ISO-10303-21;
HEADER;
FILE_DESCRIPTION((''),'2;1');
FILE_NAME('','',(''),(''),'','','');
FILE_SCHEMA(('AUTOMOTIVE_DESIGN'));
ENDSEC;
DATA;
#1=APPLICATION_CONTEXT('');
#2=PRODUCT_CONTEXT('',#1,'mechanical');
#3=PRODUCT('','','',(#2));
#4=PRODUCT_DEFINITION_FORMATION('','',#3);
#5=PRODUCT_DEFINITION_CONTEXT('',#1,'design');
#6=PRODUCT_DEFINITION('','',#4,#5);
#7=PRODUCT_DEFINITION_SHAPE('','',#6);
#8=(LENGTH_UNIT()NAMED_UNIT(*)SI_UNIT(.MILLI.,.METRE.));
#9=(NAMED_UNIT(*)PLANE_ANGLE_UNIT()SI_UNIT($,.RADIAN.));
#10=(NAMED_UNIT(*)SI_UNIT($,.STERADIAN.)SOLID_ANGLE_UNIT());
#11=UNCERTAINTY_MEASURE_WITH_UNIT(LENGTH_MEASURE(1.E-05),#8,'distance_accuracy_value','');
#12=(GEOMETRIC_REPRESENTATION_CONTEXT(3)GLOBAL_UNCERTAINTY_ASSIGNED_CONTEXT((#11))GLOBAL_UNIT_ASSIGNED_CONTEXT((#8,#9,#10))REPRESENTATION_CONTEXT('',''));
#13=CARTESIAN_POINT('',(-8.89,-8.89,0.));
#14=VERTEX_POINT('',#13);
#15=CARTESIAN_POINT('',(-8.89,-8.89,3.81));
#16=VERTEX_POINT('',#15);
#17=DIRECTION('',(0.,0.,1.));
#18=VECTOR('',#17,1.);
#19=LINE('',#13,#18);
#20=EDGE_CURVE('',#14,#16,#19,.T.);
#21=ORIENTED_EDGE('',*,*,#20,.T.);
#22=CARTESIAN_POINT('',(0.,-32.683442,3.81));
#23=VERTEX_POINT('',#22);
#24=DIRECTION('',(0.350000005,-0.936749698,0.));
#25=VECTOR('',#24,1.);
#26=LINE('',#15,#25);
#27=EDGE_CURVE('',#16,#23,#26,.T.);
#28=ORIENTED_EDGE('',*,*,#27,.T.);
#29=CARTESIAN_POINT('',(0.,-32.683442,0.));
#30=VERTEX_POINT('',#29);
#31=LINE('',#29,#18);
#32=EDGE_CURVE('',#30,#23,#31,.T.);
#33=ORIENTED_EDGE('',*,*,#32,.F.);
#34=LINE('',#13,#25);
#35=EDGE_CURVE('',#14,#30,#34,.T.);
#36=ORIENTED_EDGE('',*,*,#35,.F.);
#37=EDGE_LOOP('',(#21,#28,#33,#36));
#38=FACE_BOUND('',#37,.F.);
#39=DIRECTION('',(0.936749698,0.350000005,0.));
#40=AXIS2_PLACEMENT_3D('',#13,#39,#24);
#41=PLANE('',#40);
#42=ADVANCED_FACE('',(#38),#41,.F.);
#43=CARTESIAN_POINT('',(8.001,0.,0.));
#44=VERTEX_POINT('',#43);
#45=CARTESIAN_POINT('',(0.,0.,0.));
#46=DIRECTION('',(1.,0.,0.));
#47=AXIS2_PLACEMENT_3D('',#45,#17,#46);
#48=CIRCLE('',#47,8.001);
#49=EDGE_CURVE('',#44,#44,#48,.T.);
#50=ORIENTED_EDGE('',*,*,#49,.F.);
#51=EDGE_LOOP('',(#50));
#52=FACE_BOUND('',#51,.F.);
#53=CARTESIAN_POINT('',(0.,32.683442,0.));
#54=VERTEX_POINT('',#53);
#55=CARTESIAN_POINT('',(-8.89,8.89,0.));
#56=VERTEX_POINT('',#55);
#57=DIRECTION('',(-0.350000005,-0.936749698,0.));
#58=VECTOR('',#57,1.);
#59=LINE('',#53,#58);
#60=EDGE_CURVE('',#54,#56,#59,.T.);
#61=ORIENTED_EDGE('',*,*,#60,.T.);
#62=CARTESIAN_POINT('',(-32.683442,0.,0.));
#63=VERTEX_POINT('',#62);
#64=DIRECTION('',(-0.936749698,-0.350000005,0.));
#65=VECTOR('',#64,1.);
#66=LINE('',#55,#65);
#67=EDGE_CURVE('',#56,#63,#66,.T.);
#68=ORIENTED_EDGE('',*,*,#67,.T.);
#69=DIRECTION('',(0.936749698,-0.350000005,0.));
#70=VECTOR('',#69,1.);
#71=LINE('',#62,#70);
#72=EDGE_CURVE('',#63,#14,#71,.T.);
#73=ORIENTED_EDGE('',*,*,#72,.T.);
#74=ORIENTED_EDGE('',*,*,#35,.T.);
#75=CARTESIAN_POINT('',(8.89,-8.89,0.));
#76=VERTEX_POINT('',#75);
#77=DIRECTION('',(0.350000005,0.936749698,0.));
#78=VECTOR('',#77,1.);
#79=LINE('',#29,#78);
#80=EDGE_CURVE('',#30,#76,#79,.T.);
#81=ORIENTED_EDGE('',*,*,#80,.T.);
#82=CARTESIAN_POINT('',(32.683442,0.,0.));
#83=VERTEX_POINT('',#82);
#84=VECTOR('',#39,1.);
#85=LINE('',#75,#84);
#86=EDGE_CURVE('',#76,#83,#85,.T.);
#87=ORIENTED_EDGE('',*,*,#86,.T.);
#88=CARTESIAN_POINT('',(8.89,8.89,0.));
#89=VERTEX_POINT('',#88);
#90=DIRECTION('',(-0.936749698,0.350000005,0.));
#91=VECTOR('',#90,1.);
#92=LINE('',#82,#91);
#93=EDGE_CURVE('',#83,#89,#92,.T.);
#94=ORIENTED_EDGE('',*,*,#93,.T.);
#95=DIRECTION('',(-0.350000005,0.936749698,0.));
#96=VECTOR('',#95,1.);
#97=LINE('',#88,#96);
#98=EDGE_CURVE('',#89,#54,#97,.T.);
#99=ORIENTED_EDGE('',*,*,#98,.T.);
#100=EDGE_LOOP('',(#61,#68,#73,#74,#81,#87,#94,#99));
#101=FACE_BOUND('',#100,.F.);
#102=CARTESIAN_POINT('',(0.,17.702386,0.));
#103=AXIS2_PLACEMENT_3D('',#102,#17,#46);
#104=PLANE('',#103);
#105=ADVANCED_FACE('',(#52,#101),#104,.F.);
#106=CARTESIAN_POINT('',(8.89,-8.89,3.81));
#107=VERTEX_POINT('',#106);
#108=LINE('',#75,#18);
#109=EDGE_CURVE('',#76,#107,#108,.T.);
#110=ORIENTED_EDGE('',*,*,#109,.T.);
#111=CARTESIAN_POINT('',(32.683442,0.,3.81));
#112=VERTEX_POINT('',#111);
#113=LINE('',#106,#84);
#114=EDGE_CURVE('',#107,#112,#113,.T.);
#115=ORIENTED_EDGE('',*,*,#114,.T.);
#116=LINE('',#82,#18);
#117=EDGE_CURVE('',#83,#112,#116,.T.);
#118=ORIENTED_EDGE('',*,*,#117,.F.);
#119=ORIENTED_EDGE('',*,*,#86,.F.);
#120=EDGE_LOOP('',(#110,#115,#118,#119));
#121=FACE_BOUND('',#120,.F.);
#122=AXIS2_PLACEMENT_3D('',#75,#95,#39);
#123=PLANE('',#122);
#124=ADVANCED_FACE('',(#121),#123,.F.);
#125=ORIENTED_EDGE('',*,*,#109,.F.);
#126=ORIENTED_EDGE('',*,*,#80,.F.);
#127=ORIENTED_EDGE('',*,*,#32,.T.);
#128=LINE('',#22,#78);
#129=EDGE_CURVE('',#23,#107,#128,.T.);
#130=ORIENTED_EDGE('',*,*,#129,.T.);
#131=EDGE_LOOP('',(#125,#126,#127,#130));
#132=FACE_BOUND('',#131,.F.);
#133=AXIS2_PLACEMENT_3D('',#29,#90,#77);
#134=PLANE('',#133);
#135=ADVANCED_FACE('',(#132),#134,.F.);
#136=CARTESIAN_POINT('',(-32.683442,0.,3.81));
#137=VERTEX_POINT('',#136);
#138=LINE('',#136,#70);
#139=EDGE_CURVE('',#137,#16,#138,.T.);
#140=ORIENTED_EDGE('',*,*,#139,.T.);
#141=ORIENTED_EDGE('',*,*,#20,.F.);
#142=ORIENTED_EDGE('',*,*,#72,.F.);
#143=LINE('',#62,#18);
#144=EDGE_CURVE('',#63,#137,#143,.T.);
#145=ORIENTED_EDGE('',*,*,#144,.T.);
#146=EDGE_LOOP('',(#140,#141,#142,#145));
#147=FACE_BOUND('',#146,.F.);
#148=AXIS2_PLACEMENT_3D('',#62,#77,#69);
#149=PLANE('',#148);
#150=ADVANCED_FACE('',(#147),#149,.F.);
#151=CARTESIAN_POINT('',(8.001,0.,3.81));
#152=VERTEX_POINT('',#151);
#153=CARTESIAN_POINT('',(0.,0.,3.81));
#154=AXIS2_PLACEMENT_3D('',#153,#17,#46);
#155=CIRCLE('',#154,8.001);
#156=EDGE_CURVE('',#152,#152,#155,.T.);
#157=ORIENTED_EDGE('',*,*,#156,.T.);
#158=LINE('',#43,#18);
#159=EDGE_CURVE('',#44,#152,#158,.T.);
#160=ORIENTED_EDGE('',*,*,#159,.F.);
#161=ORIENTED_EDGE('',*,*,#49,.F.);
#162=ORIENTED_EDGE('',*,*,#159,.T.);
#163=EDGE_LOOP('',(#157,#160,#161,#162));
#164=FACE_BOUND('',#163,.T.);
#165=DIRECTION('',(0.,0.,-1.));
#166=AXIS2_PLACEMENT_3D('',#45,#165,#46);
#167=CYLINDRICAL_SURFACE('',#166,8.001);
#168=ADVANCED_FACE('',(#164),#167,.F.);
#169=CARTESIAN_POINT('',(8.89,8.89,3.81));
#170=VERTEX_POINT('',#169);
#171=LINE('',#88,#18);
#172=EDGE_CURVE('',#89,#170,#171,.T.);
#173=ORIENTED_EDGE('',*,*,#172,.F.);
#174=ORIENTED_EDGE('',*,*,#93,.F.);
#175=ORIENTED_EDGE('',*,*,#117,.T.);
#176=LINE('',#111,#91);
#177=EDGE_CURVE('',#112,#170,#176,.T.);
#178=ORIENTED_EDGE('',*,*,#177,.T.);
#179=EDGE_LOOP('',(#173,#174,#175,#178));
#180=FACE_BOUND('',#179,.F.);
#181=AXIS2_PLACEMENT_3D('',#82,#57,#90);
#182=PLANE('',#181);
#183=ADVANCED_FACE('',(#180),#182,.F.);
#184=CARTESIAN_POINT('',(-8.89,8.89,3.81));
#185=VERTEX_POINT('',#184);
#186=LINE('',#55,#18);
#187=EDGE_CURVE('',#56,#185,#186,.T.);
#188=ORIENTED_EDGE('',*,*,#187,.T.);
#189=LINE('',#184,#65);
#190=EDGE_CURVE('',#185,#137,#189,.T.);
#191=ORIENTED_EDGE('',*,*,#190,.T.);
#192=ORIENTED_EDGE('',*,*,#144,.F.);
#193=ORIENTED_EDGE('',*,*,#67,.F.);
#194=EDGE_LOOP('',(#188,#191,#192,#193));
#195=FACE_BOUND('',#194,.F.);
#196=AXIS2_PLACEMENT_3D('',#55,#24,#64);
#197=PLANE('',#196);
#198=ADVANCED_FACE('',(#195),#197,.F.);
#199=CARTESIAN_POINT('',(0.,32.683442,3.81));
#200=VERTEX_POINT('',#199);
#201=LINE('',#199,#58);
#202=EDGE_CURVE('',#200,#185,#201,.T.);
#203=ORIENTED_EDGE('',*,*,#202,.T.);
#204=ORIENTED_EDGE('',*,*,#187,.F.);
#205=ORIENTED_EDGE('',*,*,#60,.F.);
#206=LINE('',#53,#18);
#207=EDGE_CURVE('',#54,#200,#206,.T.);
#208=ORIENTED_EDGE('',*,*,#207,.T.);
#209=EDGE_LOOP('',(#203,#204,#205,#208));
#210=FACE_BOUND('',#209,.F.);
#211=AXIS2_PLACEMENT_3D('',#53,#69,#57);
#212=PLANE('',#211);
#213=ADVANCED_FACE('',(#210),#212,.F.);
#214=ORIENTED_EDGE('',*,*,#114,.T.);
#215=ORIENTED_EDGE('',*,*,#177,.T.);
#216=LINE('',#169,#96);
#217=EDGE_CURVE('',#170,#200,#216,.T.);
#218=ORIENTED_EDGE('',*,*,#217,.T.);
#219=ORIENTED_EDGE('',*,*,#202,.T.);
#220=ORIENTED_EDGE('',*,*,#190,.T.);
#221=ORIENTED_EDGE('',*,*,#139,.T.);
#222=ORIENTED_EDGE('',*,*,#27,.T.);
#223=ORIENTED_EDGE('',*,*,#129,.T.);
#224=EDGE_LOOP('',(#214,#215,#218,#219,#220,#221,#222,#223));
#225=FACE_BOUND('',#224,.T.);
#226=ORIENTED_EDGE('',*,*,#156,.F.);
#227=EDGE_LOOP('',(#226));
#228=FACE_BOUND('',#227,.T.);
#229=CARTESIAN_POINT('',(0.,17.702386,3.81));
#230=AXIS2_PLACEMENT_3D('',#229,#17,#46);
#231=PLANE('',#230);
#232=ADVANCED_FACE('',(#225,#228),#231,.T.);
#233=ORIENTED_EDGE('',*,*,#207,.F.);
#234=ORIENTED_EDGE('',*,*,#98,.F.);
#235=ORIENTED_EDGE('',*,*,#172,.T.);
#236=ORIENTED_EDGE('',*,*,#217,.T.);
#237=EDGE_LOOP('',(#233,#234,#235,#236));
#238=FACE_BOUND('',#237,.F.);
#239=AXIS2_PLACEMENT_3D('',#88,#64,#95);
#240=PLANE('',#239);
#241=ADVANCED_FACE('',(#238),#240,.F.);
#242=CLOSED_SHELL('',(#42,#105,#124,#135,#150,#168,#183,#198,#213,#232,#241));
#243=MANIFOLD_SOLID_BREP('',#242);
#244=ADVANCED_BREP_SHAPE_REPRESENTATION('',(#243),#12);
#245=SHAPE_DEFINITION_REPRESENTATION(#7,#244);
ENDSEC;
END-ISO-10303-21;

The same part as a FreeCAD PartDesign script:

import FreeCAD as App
import Part
import Sketcher
Q = App.Units.Quantity

doc = App.newDocument("Part")
body = doc.addObject("PartDesign::Body", "Body")

sketch1 = body.newObject("Sketcher::SketchObject", "Sketch")
sketch1.AttachmentSupport = (doc.getObject("XY_Plane"), [""])
sketch1.MapMode = "FlatFace"
sketch1.addGeometry([
    Part.LineSegment(App.Vector(9, 9, 0), App.Vector(0, 33, 0)),
    Part.LineSegment(App.Vector(0, 33, 0), App.Vector(-9, 9, 0)),
    Part.LineSegment(App.Vector(-9, 9, 0), App.Vector(-33, 0, 0)),
    Part.LineSegment(App.Vector(-33, 0, 0), App.Vector(-9, -9, 0)),
    Part.LineSegment(App.Vector(-9, -9, 0), App.Vector(0, -33, 0)),
    Part.LineSegment(App.Vector(0, -33, 0), App.Vector(9, -9, 0)),
    Part.LineSegment(App.Vector(9, -9, 0), App.Vector(33, 0, 0)),
    Part.LineSegment(App.Vector(33, 0, 0), App.Vector(9, 9, 0)),
    Part.Circle(App.Vector(0, 0, 0), App.Vector(0, 0, 1), 8),
], False)
sketch1.addConstraint([
    Sketcher.Constraint("Coincident", 0, 2, 1, 1),
    Sketcher.Constraint("Coincident", 1, 2, 2, 1),
    Sketcher.Constraint("Coincident", 2, 2, 3, 1),
    Sketcher.Constraint("Coincident", 3, 2, 4, 1),
    Sketcher.Constraint("Coincident", 4, 2, 5, 1),
    Sketcher.Constraint("Coincident", 5, 2, 6, 1),
    Sketcher.Constraint("Coincident", 6, 2, 7, 1),
    Sketcher.Constraint("Coincident", 7, 2, 0, 1),
    Sketcher.Constraint("Coincident", 8, 3, -1, 1),
    Sketcher.Constraint("Symmetric", 0, 2, 4, 2, -1, 1),
    Sketcher.Constraint("Symmetric", 1, 2, 5, 2, -1, 1),
    Sketcher.Constraint("Symmetric", 2, 2, 6, 2, -1, 1),
    Sketcher.Constraint("Symmetric", 3, 2, 7, 2, -1, 1),
    Sketcher.Constraint("Symmetric", 3, 2, 5, 2, -2),
    Sketcher.Constraint("PointOnObject", 0, 2, -2),
    Sketcher.Constraint("PointOnObject", 2, 2, -1),
    Sketcher.Constraint("Perpendicular", 0, 2),
    Sketcher.Constraint("Equal", 1, 2),
    Sketcher.Constraint("Diameter", 8, Q("0.63 in")),
    Sketcher.Constraint("Distance", 0, Q("1 in")),
    Sketcher.Constraint("DistanceY", 3, 2, 1, 2, Q("0.7 in")),
])
pad1 = body.newObject("PartDesign::Pad", "Pad")
pad1.Profile = sketch1
pad1.Length = Q("0.15 in")

doc.recompute()
